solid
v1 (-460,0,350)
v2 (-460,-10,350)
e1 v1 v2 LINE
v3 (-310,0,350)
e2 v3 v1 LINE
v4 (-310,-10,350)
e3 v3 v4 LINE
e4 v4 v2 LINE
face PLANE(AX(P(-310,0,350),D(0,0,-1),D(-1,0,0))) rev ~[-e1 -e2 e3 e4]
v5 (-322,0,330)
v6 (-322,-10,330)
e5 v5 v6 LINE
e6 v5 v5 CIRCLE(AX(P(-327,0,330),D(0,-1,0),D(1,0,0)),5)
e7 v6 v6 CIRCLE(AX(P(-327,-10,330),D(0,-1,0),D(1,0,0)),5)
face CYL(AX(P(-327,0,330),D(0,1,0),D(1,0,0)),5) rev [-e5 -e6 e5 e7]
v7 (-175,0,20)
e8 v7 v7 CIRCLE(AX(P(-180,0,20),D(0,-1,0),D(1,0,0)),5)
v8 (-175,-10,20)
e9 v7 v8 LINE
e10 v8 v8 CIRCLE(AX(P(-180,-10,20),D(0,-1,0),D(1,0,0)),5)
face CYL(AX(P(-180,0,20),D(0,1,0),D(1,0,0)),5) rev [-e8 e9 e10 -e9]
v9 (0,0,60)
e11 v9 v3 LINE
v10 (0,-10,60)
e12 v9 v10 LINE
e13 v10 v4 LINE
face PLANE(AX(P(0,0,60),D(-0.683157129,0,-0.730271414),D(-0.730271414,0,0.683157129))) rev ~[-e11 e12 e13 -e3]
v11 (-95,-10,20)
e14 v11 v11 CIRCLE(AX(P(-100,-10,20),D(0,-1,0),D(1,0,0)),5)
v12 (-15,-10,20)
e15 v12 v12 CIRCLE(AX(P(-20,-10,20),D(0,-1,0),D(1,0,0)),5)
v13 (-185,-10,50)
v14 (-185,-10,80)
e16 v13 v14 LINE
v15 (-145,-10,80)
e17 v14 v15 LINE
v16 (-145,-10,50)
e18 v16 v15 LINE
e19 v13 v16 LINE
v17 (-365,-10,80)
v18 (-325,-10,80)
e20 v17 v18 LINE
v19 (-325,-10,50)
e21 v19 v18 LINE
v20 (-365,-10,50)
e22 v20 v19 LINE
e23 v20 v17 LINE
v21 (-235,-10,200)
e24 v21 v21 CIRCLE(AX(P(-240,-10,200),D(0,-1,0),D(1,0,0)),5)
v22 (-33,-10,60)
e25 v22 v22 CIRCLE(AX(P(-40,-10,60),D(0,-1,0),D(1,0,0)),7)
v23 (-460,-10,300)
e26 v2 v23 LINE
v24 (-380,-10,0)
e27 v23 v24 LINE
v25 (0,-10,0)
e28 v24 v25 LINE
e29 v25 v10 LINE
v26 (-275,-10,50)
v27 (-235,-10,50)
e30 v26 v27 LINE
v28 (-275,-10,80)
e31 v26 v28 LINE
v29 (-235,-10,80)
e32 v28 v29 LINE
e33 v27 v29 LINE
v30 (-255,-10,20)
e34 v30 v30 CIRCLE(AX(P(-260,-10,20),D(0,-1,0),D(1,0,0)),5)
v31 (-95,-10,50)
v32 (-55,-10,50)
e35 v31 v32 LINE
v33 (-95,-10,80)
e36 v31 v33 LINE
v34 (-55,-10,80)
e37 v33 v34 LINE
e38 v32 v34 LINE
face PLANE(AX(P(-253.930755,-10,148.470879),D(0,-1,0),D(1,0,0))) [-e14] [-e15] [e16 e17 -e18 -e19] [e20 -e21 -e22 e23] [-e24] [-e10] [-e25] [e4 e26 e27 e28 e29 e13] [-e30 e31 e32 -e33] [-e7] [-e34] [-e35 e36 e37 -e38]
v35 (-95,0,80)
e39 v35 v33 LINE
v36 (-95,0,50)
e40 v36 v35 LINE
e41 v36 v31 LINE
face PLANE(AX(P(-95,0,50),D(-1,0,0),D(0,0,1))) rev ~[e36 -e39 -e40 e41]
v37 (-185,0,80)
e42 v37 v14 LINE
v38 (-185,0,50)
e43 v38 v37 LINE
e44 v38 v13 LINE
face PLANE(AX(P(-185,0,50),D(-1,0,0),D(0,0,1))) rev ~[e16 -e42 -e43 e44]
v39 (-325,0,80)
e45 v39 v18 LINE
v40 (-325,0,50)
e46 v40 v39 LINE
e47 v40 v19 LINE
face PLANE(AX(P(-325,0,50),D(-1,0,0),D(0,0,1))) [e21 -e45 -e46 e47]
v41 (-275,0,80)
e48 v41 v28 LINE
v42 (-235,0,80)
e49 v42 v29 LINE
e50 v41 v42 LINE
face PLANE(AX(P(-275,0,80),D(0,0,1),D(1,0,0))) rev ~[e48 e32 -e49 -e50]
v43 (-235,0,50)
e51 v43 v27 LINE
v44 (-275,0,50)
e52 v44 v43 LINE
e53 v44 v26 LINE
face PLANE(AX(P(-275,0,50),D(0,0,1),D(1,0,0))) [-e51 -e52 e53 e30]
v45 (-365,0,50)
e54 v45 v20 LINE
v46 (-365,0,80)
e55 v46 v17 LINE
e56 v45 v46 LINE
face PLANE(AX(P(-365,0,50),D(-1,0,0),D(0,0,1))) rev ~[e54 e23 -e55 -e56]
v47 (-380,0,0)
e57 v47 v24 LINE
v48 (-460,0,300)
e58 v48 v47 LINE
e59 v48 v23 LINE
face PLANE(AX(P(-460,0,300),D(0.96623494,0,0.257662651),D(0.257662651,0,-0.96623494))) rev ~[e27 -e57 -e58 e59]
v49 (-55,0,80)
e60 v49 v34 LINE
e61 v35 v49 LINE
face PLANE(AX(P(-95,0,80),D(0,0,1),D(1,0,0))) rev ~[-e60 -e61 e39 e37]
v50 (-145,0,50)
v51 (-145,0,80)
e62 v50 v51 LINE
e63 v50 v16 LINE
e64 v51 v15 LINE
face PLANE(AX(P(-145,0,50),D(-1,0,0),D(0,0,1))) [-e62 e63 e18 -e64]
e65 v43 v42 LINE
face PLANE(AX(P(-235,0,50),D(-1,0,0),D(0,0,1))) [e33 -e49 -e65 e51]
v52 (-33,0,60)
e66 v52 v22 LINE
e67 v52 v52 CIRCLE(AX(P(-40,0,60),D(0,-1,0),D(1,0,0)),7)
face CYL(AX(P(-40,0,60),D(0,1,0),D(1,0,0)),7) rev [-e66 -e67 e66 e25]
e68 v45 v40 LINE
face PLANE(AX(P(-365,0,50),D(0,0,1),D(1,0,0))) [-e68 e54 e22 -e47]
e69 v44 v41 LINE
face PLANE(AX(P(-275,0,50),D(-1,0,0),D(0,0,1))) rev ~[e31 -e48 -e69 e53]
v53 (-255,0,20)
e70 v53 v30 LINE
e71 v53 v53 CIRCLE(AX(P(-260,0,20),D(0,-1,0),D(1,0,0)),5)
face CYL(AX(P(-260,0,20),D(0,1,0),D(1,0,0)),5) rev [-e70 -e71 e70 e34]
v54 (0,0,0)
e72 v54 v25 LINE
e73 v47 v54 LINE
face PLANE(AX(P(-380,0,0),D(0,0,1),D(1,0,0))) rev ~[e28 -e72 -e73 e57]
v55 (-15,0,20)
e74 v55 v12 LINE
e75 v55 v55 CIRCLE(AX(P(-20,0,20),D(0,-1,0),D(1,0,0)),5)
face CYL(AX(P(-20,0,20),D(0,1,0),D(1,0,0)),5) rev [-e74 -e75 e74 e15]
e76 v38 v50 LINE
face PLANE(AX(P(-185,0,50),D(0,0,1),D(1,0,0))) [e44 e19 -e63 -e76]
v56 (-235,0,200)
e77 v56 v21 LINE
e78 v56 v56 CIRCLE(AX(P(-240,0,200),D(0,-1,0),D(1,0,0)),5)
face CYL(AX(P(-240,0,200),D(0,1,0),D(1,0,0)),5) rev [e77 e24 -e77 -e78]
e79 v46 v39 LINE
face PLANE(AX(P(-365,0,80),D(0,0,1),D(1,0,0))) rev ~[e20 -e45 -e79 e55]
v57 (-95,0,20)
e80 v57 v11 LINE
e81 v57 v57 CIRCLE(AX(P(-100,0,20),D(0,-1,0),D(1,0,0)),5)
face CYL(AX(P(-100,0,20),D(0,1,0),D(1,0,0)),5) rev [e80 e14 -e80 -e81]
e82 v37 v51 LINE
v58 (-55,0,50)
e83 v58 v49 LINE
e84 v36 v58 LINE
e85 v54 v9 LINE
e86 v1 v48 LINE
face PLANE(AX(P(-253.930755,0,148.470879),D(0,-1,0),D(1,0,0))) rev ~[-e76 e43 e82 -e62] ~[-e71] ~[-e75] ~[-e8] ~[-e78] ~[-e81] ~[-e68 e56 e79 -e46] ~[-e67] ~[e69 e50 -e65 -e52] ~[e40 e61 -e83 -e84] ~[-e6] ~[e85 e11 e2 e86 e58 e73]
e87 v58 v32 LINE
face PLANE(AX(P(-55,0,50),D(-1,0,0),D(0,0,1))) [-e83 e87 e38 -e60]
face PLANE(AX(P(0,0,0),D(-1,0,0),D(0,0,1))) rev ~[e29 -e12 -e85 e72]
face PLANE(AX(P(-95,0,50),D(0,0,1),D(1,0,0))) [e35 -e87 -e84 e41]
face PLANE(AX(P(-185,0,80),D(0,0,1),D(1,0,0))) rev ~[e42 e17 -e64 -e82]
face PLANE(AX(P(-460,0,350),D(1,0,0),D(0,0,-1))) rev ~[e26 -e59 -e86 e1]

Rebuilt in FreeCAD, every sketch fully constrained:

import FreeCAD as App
import Part
import Sketcher


def add_polygon(sketch, points):
    """Adds a closed chain of lines whose ends are joined by coincident constraints."""
    first, n = sketch.GeometryCount, len(points)
    for a, b in zip(points, points[1:] + points[:1]):
        sketch.addGeometry(Part.LineSegment(App.Vector(*a, 0), App.Vector(*b, 0)), False)
    for i in range(n):
        sketch.addConstraint(Sketcher.Constraint("Coincident", first + i, 2, first + (i + 1) % n, 1))

doc = App.newDocument("Part")
body = doc.addObject("PartDesign::Body", "Body")

# Sketch on XZ plane
sketch1 = body.newObject("Sketcher::SketchObject", "Sketch")
sketch1.AttachmentSupport = (doc.getObject("XZ_Plane"), [""])
sketch1.MapMode = "FlatFace"
add_polygon(sketch1, [(-380, 0), (0, 0), (0, 60), (-310, 350), (-460, 350), (-460, 300)])  # lines 0-5
add_polygon(sketch1, [(-325, 50), (-365, 50), (-365, 80), (-325, 80)])  # lines 6-9
sketch1.addGeometry(Part.Circle(App.Vector(-260, 20, 0), App.Vector(0, 0, 1), 5), False)  # 10
add_polygon(sketch1, [(-235, 50), (-275, 50), (-275, 80), (-235, 80)])  # lines 11-14
sketch1.addGeometry(Part.Circle(App.Vector(-180, 20, 0), App.Vector(0, 0, 1), 5), False)  # 15
add_polygon(sketch1, [(-145, 50), (-185, 50), (-185, 80), (-145, 80)])  # lines 16-19
sketch1.addGeometry(Part.Circle(App.Vector(-100, 20, 0), App.Vector(0, 0, 1), 5), False)  # 20
sketch1.addGeometry(Part.Circle(App.Vector(-20, 20, 0), App.Vector(0, 0, 1), 5), False)  # 21
add_polygon(sketch1, [(-55, 50), (-95, 50), (-95, 80), (-55, 80)])  # lines 22-25
sketch1.addGeometry(Part.Circle(App.Vector(-40, 60, 0), App.Vector(0, 0, 1), 7), False)  # 26
sketch1.addGeometry(Part.Circle(App.Vector(-240, 200, 0), App.Vector(0, 0, 1), 5), False)  # 27
sketch1.addGeometry(Part.Circle(App.Vector(-327, 330, 0), App.Vector(0, 0, 1), 5), False)  # 28
sketch1.addConstraint([
    Sketcher.Constraint("Horizontal", 0),
    Sketcher.Constraint("Vertical", 1),
    Sketcher.Constraint("Horizontal", 3),
    Sketcher.Constraint("Vertical", 4),
    Sketcher.Constraint("Horizontal", 6),
    Sketcher.Constraint("Vertical", 7),
    Sketcher.Constraint("Horizontal", 8),
    Sketcher.Constraint("Vertical", 9),
    Sketcher.Constraint("Horizontal", 11),
    Sketcher.Constraint("Vertical", 12),
    Sketcher.Constraint("Horizontal", 13),
    Sketcher.Constraint("Vertical", 14),
    Sketcher.Constraint("Horizontal", 16),
    Sketcher.Constraint("Vertical", 17),
    Sketcher.Constraint("Horizontal", 18),
    Sketcher.Constraint("Vertical", 19),
    Sketcher.Constraint("Horizontal", 22),
    Sketcher.Constraint("Vertical", 23),
    Sketcher.Constraint("Horizontal", 24),
    Sketcher.Constraint("Vertical", 25),
    Sketcher.Constraint("Coincident", 0, 2, -1, 1),
    Sketcher.Constraint("Equal", 10, 15),
    Sketcher.Constraint("Equal", 15, 20),
    Sketcher.Constraint("Equal", 20, 21),
    Sketcher.Constraint("Equal", 21, 27),
    Sketcher.Constraint("Equal", 27, 28),
    Sketcher.Constraint("Horizontal", 10, 3, 15, 3),
    Sketcher.Constraint("Horizontal", 15, 3, 20, 3),
    Sketcher.Constraint("Horizontal", 20, 3, 21, 3),
    Sketcher.Constraint("Horizontal", 26, 3, 1, 2),
    Sketcher.Constraint("Horizontal", 9, 2, 11, 2),
    Sketcher.Constraint("Horizontal", 8, 2, 12, 2),
    Sketcher.Constraint("Horizontal", 14, 2, 16, 2),
    Sketcher.Constraint("Horizontal", 13, 2, 17, 2),
    Sketcher.Constraint("Horizontal", 19, 2, 22, 2),
    Sketcher.Constraint("Horizontal", 18, 2, 23, 2),
    Sketcher.Constraint("Equal", 8, 11),
    Sketcher.Constraint("Equal", 13, 16),
    Sketcher.Constraint("Equal", 18, 22),
    Sketcher.Constraint("Diameter", 10, 10.0),
    Sketcher.Constraint("Diameter", 26, 14.0),
    Sketcher.Constraint("DistanceX", 0, 1, 0, 2, 380.0),
    Sketcher.Constraint("DistanceX", 3, 2, 3, 1, 150.0),
    Sketcher.Constraint("DistanceX", 6, 2, 6, 1, 40.0),
    Sketcher.Constraint("DistanceY", 1, 1, 1, 2, 60.0),
    Sketcher.Constraint("DistanceY", 4, 2, 4, 1, 50.0),
    Sketcher.Constraint("DistanceY", 7, 1, 7, 2, 30.0),
    Sketcher.Constraint("DistanceX", 10, 3, -1, 1, 260.0),
    Sketcher.Constraint("DistanceY", -1, 1, 10, 3, 20.0),
    Sketcher.Constraint("DistanceX", 15, 3, -1, 1, 180.0),
    Sketcher.Constraint("DistanceX", 20, 3, -1, 1, 100.0),
    Sketcher.Constraint("DistanceX", 21, 3, -1, 1, 20.0),
    Sketcher.Constraint("DistanceX", 26, 3, -1, 1, 40.0),
    Sketcher.Constraint("DistanceX", 27, 3, -1, 1, 240.0),
    Sketcher.Constraint("DistanceY", -1, 1, 27, 3, 200.0),
    Sketcher.Constraint("DistanceX", 28, 3, -1, 1, 327.0),
    Sketcher.Constraint("DistanceY", -1, 1, 28, 3, 330.0),
    Sketcher.Constraint("DistanceX", 2, 2, -1, 1, 310.0),
    Sketcher.Constraint("DistanceY", -1, 1, 2, 2, 350.0),
    Sketcher.Constraint("DistanceX", 6, 2, -1, 1, 365.0),
    Sketcher.Constraint("DistanceY", -1, 1, 6, 2, 50.0),
    Sketcher.Constraint("DistanceX", 11, 2, -1, 1, 275.0),
    Sketcher.Constraint("DistanceX", 16, 2, -1, 1, 185.0),
    Sketcher.Constraint("DistanceX", 22, 2, -1, 1, 95.0),
])
pad1 = body.newObject("PartDesign::Pad", "Pad")
pad1.Profile = sketch1
pad1.Length = 10

doc.recompute()
